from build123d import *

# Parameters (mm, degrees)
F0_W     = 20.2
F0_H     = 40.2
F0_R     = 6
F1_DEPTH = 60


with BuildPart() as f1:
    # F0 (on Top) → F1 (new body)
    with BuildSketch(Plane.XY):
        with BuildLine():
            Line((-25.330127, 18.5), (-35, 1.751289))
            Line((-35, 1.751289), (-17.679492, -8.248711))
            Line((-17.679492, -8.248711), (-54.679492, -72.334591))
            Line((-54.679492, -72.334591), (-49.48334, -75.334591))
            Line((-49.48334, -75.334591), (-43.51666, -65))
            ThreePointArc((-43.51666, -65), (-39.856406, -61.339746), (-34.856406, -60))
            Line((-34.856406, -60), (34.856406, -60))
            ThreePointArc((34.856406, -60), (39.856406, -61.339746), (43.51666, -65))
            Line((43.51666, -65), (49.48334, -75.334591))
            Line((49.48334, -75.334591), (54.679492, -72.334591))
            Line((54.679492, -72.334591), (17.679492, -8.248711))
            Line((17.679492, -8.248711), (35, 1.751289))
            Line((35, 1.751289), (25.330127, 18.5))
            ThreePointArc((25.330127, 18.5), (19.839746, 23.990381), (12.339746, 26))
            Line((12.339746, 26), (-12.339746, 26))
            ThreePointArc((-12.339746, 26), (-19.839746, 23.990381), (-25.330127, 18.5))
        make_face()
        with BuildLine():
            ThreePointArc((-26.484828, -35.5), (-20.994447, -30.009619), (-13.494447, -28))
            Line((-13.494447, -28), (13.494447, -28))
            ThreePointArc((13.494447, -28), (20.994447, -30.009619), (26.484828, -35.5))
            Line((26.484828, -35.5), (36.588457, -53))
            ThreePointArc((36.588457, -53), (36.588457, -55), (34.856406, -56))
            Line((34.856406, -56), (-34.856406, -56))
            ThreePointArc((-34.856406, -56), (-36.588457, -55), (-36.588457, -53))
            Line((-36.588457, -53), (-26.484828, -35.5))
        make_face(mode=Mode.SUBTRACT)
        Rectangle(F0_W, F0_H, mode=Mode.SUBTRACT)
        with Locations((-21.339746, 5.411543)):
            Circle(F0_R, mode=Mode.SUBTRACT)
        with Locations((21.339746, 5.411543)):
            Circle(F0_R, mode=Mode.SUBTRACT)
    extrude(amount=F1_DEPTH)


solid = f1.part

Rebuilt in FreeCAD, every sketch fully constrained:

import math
import FreeCAD as App
import Part
import Sketcher
Q = App.Units.Quantity

doc = App.newDocument("Part")
body = doc.addObject("PartDesign::Body", "Body")

sketch1 = body.newObject("Sketcher::SketchObject", "Sketch")
sketch1.AttachmentSupport = (doc.getObject("XY_Plane"), [""])
sketch1.MapMode = "FlatFace"
sketch1.addGeometry([
    Part.LineSegment(App.Vector(-25.3, 18.5, 0), App.Vector(-35, 1.8, 0)),
    Part.LineSegment(App.Vector(-35, 1.8, 0), App.Vector(-17.7, -8.2, 0)),
    Part.LineSegment(App.Vector(-17.7, -8.2, 0), App.Vector(-54.7, -72.3, 0)),
    Part.LineSegment(App.Vector(-54.7, -72.3, 0), App.Vector(-49.5, -75.3, 0)),
    Part.LineSegment(App.Vector(-49.5, -75.3, 0), App.Vector(-43.5, -65, 0)),
    Part.ArcOfCircle(Part.Circle(App.Vector(-34.9, -70, 0), App.Vector(0, 0, 1), 10), math.radians(90), math.radians(150)),
    Part.LineSegment(App.Vector(-34.9, -60, 0), App.Vector(34.9, -60, 0)),
    Part.ArcOfCircle(Part.Circle(App.Vector(34.9, -70, 0), App.Vector(0, 0, 1), 10), math.radians(30), math.radians(90)),
    Part.LineSegment(App.Vector(43.5, -65, 0), App.Vector(49.5, -75.3, 0)),
    Part.LineSegment(App.Vector(49.5, -75.3, 0), App.Vector(54.7, -72.3, 0)),
    Part.LineSegment(App.Vector(54.7, -72.3, 0), App.Vector(17.7, -8.2, 0)),
    Part.LineSegment(App.Vector(17.7, -8.2, 0), App.Vector(35, 1.8, 0)),
    Part.LineSegment(App.Vector(35, 1.8, 0), App.Vector(25.3, 18.5, 0)),
    Part.ArcOfCircle(Part.Circle(App.Vector(12.3, 11, 0), App.Vector(0, 0, 1), 15), math.radians(30), math.radians(90)),
    Part.LineSegment(App.Vector(12.3, 26, 0), App.Vector(-12.3, 26, 0)),
    Part.ArcOfCircle(Part.Circle(App.Vector(-12.3, 11, 0), App.Vector(0, 0, 1), 15), math.radians(90), math.radians(150)),
    Part.LineSegment(App.Vector(-36.6, -53, 0), App.Vector(-26.5, -35.5, 0)),
    Part.ArcOfCircle(Part.Circle(App.Vector(-13.5, -43, 0), App.Vector(0, 0, 1), 15), math.radians(90), math.radians(150)),
    Part.LineSegment(App.Vector(-13.5, -28, 0), App.Vector(13.5, -28, 0)),
    Part.ArcOfCircle(Part.Circle(App.Vector(13.5, -43, 0), App.Vector(0, 0, 1), 15), math.radians(30), math.radians(90)),
    Part.LineSegment(App.Vector(26.5, -35.5, 0), App.Vector(36.6, -53, 0)),
    Part.ArcOfCircle(Part.Circle(App.Vector(34.9, -54, 0), App.Vector(0, 0, 1), 2), math.radians(-90), math.radians(30)),
    Part.LineSegment(App.Vector(34.9, -56, 0), App.Vector(-34.9, -56, 0)),
    Part.ArcOfCircle(Part.Circle(App.Vector(-34.9, -54, 0), App.Vector(0, 0, 1), 2), math.radians(150), math.radians(270)),
    Part.Circle(App.Vector(-21.3, 5.4, 0), App.Vector(0, 0, 1), 6),
    Part.LineSegment(App.Vector(10.1, -20.1, 0), App.Vector(-10.1, -20.1, 0)),
    Part.LineSegment(App.Vector(-10.1, -20.1, 0), App.Vector(-10.1, 20.1, 0)),
    Part.LineSegment(App.Vector(-10.1, 20.1, 0), App.Vector(10.1, 20.1, 0)),
    Part.LineSegment(App.Vector(10.1, 20.1, 0), App.Vector(10.1, -20.1, 0)),
    Part.Circle(App.Vector(21.3, 5.4, 0), App.Vector(0, 0, 1), 6),
], False)
sketch1.addConstraint([
    Sketcher.Constraint("Coincident", 0, 2, 1, 1),
    Sketcher.Constraint("Coincident", 1, 2, 2, 1),
    Sketcher.Constraint("Coincident", 2, 2, 3, 1),
    Sketcher.Constraint("Coincident", 3, 2, 4, 1),
    Sketcher.Constraint("Tangent", 4, 2, 5, 2),
    Sketcher.Constraint("Tangent", 5, 1, 6, 1),
    Sketcher.Constraint("Tangent", 6, 2, 7, 2),
    Sketcher.Constraint("Tangent", 7, 1, 8, 1),
    Sketcher.Constraint("Coincident", 8, 2, 9, 1),
    Sketcher.Constraint("Coincident", 9, 2, 10, 1),
    Sketcher.Constraint("Coincident", 10, 2, 11, 1),
    Sketcher.Constraint("Coincident", 11, 2, 12, 1),
    Sketcher.Constraint("Tangent", 12, 2, 13, 1),
    Sketcher.Constraint("Tangent", 13, 2, 14, 1),
    Sketcher.Constraint("Tangent", 14, 2, 15, 1),
    Sketcher.Constraint("Tangent", 15, 2, 0, 1),
    Sketcher.Constraint("Tangent", 16, 2, 17, 2),
    Sketcher.Constraint("Tangent", 17, 1, 18, 1),
    Sketcher.Constraint("Tangent", 18, 2, 19, 2),
    Sketcher.Constraint("Tangent", 19, 1, 20, 1),
    Sketcher.Constraint("Tangent", 20, 2, 21, 2),
    Sketcher.Constraint("Tangent", 21, 1, 22, 1),
    Sketcher.Constraint("Tangent", 22, 2, 23, 2),
    Sketcher.Constraint("Tangent", 23, 1, 16, 1),
    Sketcher.Constraint("Coincident", 25, 2, 26, 1),
    Sketcher.Constraint("Coincident", 26, 2, 27, 1),
    Sketcher.Constraint("Coincident", 27, 2, 28, 1),
    Sketcher.Constraint("Coincident", 28, 2, 25, 1),
    Sketcher.Constraint("Horizontal", 6),
    Sketcher.Constraint("Horizontal", 14),
    Sketcher.Constraint("Horizontal", 18),
    Sketcher.Constraint("Horizontal", 22),
    Sketcher.Constraint("Horizontal", 25),
    Sketcher.Constraint("Vertical", 26),
    Sketcher.Constraint("Horizontal", 27),
    Sketcher.Constraint("Vertical", 28),
    Sketcher.Constraint("Equal", 5, 7),
    Sketcher.Constraint("Equal", 13, 15),
    Sketcher.Constraint("Equal", 15, 17),
    Sketcher.Constraint("Equal", 17, 19),
    Sketcher.Constraint("Equal", 21, 23),
    Sketcher.Constraint("Equal", 24, 29),
    Sketcher.Constraint("Symmetric", 25, 2, 27, 2, -1, 1),
    Sketcher.Constraint("Symmetric", 24, 3, 29, 3, -2),
    Sketcher.Constraint("Symmetric", 4, 2, 7, 1, -2),
    Sketcher.Constraint("Symmetric", 2, 2, 9, 2, -2),
    Sketcher.Constraint("Symmetric", 1, 2, 10, 2, -2),
    Sketcher.Constraint("Symmetric", 0, 2, 11, 2, -2),
    Sketcher.Constraint("Symmetric", 16, 2, 19, 1, -2),
    Sketcher.Constraint("Perpendicular", 0, 1),
    Sketcher.Constraint("Perpendicular", 1, 2),
    Sketcher.Constraint("Perpendicular", 2, 3),
    Sketcher.Constraint("Perpendicular", 3, 4),
    Sketcher.Constraint("Perpendicular", 8, 9),
    Sketcher.Constraint("Perpendicular", 11, 12),
    Sketcher.Constraint("Parallel", 4, 16),
    Sketcher.Constraint("Vertical", 7, 3, 21, 3),
    Sketcher.Constraint("Diameter", 24, 12.0),
    Sketcher.Constraint("Radius", 5, 10.0),
    Sketcher.Constraint("Radius", 13, 15.0),
    Sketcher.Constraint("Radius", 21, 2.0),
    Sketcher.Constraint("Angle", 0, Q("-120.000001 deg")),
    Sketcher.Constraint("Distance", 1, 20.0),
    Sketcher.Constraint("Distance", 2, 74.0),
    Sketcher.Constraint("Distance", 3, 6.0),
    Sketcher.Constraint("DistanceX", 25, 2, 25, 1, 20.2),
    Sketcher.Constraint("DistanceY", 26, 1, 26, 2, 40.2),
    Sketcher.Constraint("DistanceY", 5, 3, -1, 1, 70.0),
    Sketcher.Constraint("DistanceY", -1, 1, 13, 3, 11.0),
    Sketcher.Constraint("DistanceY", 17, 3, -1, 1, 43.0),
    Sketcher.Constraint("DistanceY", 21, 3, -1, 1, 54.0),
    Sketcher.Constraint("DistanceX", 0, 2, -1, 1, 35.0),
    Sketcher.Constraint("DistanceX", 24, 3, 15, 3, 9.0),
    Sketcher.Constraint("DistanceX", 6, 1, 6, 2, 69.712812),
    Sketcher.Constraint("DistanceY", -1, 1, 24, 3, 5.411543),
])
pad1 = body.newObject("PartDesign::Pad", "Pad")
pad1.Profile = sketch1
pad1.Length = 60

doc.recompute()
